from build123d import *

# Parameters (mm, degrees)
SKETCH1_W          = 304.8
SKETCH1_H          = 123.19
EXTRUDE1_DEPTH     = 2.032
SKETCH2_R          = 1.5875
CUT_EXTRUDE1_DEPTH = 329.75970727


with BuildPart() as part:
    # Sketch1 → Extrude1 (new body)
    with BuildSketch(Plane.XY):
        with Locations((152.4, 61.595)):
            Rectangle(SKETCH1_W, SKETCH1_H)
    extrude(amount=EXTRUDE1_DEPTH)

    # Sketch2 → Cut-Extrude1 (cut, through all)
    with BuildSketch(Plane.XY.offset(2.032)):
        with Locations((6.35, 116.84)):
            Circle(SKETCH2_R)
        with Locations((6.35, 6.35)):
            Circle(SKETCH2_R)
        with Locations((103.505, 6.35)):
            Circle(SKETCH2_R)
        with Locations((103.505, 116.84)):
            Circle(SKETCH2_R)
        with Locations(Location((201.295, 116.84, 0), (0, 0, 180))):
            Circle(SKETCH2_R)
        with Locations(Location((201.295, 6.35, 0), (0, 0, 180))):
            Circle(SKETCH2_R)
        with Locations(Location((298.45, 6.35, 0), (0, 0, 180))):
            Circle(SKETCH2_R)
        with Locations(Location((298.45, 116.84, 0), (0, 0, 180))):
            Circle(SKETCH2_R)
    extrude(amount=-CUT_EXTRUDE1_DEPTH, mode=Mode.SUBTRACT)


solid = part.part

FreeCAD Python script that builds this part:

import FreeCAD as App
import Part
import Sketcher
from FreeCAD import Vector
Q = App.Units.Quantity


def add_polygon(sketch, points):
    """Adds a closed chain of lines whose ends are joined by coincident constraints."""
    first, n = sketch.GeometryCount, len(points)
    for a, b in zip(points, points[1:] + points[:1]):
        sketch.addGeometry(Part.LineSegment(App.Vector(*a, 0), App.Vector(*b, 0)), False)
    for i in range(n):
        sketch.addConstraint(Sketcher.Constraint("Coincident", first + i, 2, first + (i + 1) % n, 1))

doc = App.newDocument("Part")
body = doc.addObject("PartDesign::Body", "Body")

sketch1 = body.newObject("Sketcher::SketchObject", "Sketch")
sketch1.AttachmentSupport = (doc.getObject("XY_Plane"), [""])
sketch1.MapMode = "FlatFace"
add_polygon(sketch1, [(0, 123), (0, 0), (305, 0), (305, 123)])
sketch1.addConstraint([
    Sketcher.Constraint("Vertical", 0),
    Sketcher.Constraint("Horizontal", 1),
    Sketcher.Constraint("Vertical", 2),
    Sketcher.Constraint("Horizontal", 3),
    Sketcher.Constraint("Coincident", 0, 2, -1, 1),
    Sketcher.Constraint("DistanceX", 1, 1, 1, 2, Q("12 in")),
    Sketcher.Constraint("DistanceY", 0, 2, 0, 1, Q("4.85 in")),
])
pad1 = body.newObject("PartDesign::Pad", "Pad")
pad1.Profile = sketch1
pad1.Length = Q("0.08 in")

sketch2 = body.newObject("Sketcher::SketchObject", "Sketch001")
sketch2.AttachmentSupport = (doc.getObject("XY_Plane"), [""])
sketch2.MapMode = "FlatFace"
sketch2.AttachmentOffset = App.Placement(Vector(0, 0, 0.08 * 25.4), App.Rotation())
sketch2.addGeometry([
    Part.Circle(Vector(6.3, 116.8, 0), Vector(0, 0, 1), 1.6),
    Part.Circle(Vector(6.3, 6.3, 0), Vector(0, 0, 1), 1.6),
    Part.Circle(Vector(103.5, 6.3, 0), Vector(0, 0, 1), 1.6),
    Part.Circle(Vector(103.5, 116.8, 0), Vector(0, 0, 1), 1.6),
    Part.Circle(Vector(201.3, 116.8, 0), Vector(0, 0, 1), 1.6),
    Part.Circle(Vector(201.3, 6.3, 0), Vector(0, 0, 1), 1.6),
    Part.Circle(Vector(298.4, 6.3, 0), Vector(0, 0, 1), 1.6),
    Part.Circle(Vector(298.4, 116.8, 0), Vector(0, 0, 1), 1.6),
], False)
sketch2.addConstraint([
    Sketcher.Constraint("Equal", 0, 1),
    Sketcher.Constraint("Equal", 1, 2),
    Sketcher.Constraint("Equal", 2, 3),
    Sketcher.Constraint("Equal", 3, 4),
    Sketcher.Constraint("Equal", 4, 5),
    Sketcher.Constraint("Equal", 5, 6),
    Sketcher.Constraint("Equal", 6, 7),
    Sketcher.Constraint("Horizontal", 1, 3, 2, 3),
    Sketcher.Constraint("Horizontal", 0, 3, 3, 3),
    Sketcher.Constraint("Horizontal", 3, 3, 4, 3),
    Sketcher.Constraint("Horizontal", 2, 3, 5, 3),
    Sketcher.Constraint("Horizontal", 5, 3, 6, 3),
    Sketcher.Constraint("Horizontal", 4, 3, 7, 3),
    Sketcher.Constraint("Vertical", 0, 3, 1, 3),
    Sketcher.Constraint("Vertical", 2, 3, 3, 3),
    Sketcher.Constraint("Vertical", 4, 3, 5, 3),
    Sketcher.Constraint("Vertical", 6, 3, 7, 3),
    Sketcher.Constraint("Diameter", 0, Q("0.125 in")),
    Sketcher.Constraint("DistanceY", -1, 1, 0, 3, Q("4.6 in")),
    Sketcher.Constraint("DistanceX", 1, 3, 6, 3, Q("11.5 in")),
    Sketcher.Constraint("DistanceX", -1, 1, 0, 3, Q("0.25 in")),
    Sketcher.Constraint("DistanceY", -1, 1, 1, 3, Q("0.25 in")),
    Sketcher.Constraint("DistanceX", 3, 3, 4, 3, Q("3.85 in")),
    Sketcher.Constraint("DistanceX", -1, 1, 2, 3, Q("4.075 in")),
])
pocket1 = body.newObject("PartDesign::Pocket", "Pocket")
pocket1.Profile = sketch2
pocket1.Type = "ThroughAll"

doc.recompute()
